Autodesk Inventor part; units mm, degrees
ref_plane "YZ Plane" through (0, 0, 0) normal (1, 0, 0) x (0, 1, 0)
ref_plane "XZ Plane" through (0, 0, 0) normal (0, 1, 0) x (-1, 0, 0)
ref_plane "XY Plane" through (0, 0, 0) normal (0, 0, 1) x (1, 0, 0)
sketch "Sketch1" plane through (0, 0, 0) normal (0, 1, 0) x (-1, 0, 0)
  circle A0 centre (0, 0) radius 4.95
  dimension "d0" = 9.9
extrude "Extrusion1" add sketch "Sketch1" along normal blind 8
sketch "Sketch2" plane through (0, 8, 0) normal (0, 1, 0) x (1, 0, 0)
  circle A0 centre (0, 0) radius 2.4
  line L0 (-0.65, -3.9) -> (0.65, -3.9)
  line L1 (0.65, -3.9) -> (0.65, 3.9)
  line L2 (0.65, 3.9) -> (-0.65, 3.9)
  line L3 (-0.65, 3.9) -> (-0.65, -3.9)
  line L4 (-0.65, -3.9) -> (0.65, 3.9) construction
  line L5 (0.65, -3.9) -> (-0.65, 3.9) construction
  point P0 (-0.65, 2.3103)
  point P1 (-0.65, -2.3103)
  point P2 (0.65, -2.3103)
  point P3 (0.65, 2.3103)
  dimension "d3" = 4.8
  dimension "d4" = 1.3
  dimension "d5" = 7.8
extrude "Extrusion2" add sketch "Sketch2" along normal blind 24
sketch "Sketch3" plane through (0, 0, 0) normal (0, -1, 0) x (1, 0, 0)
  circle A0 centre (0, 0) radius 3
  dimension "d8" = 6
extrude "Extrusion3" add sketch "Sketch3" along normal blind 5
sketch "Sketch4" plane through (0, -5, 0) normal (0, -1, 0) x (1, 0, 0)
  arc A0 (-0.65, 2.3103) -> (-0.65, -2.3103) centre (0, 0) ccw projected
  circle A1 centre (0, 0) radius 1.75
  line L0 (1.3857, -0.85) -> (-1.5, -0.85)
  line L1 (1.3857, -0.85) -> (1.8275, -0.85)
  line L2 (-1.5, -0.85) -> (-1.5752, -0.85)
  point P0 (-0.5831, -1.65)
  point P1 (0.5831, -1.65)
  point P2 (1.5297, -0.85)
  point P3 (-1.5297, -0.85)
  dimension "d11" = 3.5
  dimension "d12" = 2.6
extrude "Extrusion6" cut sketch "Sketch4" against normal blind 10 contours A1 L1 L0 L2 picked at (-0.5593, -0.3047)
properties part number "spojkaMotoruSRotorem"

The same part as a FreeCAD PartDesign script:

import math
import FreeCAD as App
import Part
import Sketcher

V = App.Vector
Q = App.Units.Quantity

doc = App.newDocument("Part")
body = doc.addObject("PartDesign::Body", "Body")

sketch1 = body.newObject("Sketcher::SketchObject", "Sketch")
sketch1.AttachmentSupport = (doc.getObject("XZ_Plane"), [""])
sketch1.MapMode = "FlatFace"
sketch1.addGeometry(Part.Circle(V(0, 0, 0), V(0, 0, 1), 5), False)
sketch1.addConstraint([
    Sketcher.Constraint("Coincident", 0, 3, -1, 1),
    Sketcher.Constraint("Diameter", 0, Q("9.9 mm")),
])
pad1 = body.newObject("PartDesign::Pad", "Pad")
pad1.Profile = sketch1
pad1.Length = 8
pad1.Reversed = True

sketch2 = body.newObject("Sketcher::SketchObject", "Sketch001")
sketch2.AttachmentSupport = (doc.getObject("XZ_Plane"), [""])
sketch2.MapMode = "FlatFace"
sketch2.AttachmentOffset = App.Placement(V(0, 0, -8), App.Rotation())
sketch2.addGeometry([
    Part.ArcOfCircle(Part.Circle(V(0, 0, 0), V(0, 0, 1), 2.4), math.radians(-74), math.radians(74)),
    Part.LineSegment(V(0.7, -2.3, 0), V(0.7, -3.9, 0)),
    Part.LineSegment(V(0.7, -3.9, 0), V(-0.7, -3.9, 0)),
    Part.LineSegment(V(-0.7, -3.9, 0), V(-0.7, -2.3, 0)),
    Part.ArcOfCircle(Part.Circle(V(0, 0, 0), V(0, 0, 1), 2.4), math.radians(106), math.radians(254)),
    Part.LineSegment(V(-0.7, 2.3, 0), V(-0.7, 3.9, 0)),
    Part.LineSegment(V(-0.7, 3.9, 0), V(0.7, 3.9, 0)),
    Part.LineSegment(V(0.7, 3.9, 0), V(0.7, 2.3, 0)),
], False)
sketch2.addConstraint([
    Sketcher.Constraint("Coincident", 0, 1, 1, 1),
    Sketcher.Constraint("Coincident", 1, 2, 2, 1),
    Sketcher.Constraint("Coincident", 2, 2, 3, 1),
    Sketcher.Constraint("Coincident", 3, 2, 4, 2),
    Sketcher.Constraint("Coincident", 4, 1, 5, 1),
    Sketcher.Constraint("Coincident", 5, 2, 6, 1),
    Sketcher.Constraint("Coincident", 6, 2, 7, 1),
    Sketcher.Constraint("Coincident", 7, 2, 0, 2),
    Sketcher.Constraint("Vertical", 1),
    Sketcher.Constraint("Horizontal", 2),
    Sketcher.Constraint("Vertical", 3),
    Sketcher.Constraint("Vertical", 5),
    Sketcher.Constraint("Horizontal", 6),
    Sketcher.Constraint("Vertical", 7),
    Sketcher.Constraint("Coincident", 0, 3, -1, 1),
    Sketcher.Constraint("Coincident", 4, 3, -1, 1),
    Sketcher.Constraint("Equal", 0, 4),
    Sketcher.Constraint("Symmetric", 1, 2, 5, 2, -1, 1),
    Sketcher.Constraint("Horizontal", 0, 1, 3, 2),
    Sketcher.Constraint("Horizontal", 4, 1, 7, 2),
    Sketcher.Constraint("Radius", 0, Q("2.4 mm")),
    Sketcher.Constraint("DistanceX", 2, 2, 2, 1, Q("1.3 mm")),
    Sketcher.Constraint("DistanceY", 1, 2, -1, 1, Q("3.9 mm")),
])
pad2 = body.newObject("PartDesign::Pad", "Pad001")
pad2.Profile = sketch2
pad2.Length = 24
pad2.Reversed = True

sketch3 = body.newObject("Sketcher::SketchObject", "Sketch002")
sketch3.AttachmentSupport = (doc.getObject("XZ_Plane"), [""])
sketch3.MapMode = "FlatFace"
sketch3.addGeometry(Part.Circle(V(0, 0, 0), V(0, 0, 1), 3), False)
sketch3.addConstraint([
    Sketcher.Constraint("Coincident", 0, 3, -1, 1),
    Sketcher.Constraint("Diameter", 0, Q("6 mm")),
])
pad3 = body.newObject("PartDesign::Pad", "Pad002")
pad3.Profile = sketch3
pad3.Length = 5

sketch4 = body.newObject("Sketcher::SketchObject", "Sketch003")
sketch4.AttachmentSupport = (doc.getObject("XZ_Plane"), [""])
sketch4.MapMode = "FlatFace"
sketch4.AttachmentOffset = App.Placement(V(0, 0, 5), App.Rotation())
sketch4.addGeometry([
    Part.ArcOfCircle(Part.Circle(V(0, 0, 0), V(0, 0, 1), 1.8), math.radians(-29), math.radians(209)),
    Part.LineSegment(V(-1.5, -0.8, 0), V(1.5, -0.8, 0)),
], False)
sketch4.addConstraint([
    Sketcher.Constraint("Coincident", 0, 1, 1, 2),
    Sketcher.Constraint("Coincident", 1, 1, 0, 2),
    Sketcher.Constraint("Horizontal", 1),
    Sketcher.Constraint("Coincident", 0, 3, -1, 1),
    Sketcher.Constraint("Radius", 0, Q("1.75 mm")),
    Sketcher.Constraint("DistanceY", 0, 1, -1, 1, Q("0.85 mm")),
])
pocket1 = body.newObject("PartDesign::Pocket", "Pocket")
pocket1.Profile = sketch4
pocket1.Length = 10

doc.recompute()
